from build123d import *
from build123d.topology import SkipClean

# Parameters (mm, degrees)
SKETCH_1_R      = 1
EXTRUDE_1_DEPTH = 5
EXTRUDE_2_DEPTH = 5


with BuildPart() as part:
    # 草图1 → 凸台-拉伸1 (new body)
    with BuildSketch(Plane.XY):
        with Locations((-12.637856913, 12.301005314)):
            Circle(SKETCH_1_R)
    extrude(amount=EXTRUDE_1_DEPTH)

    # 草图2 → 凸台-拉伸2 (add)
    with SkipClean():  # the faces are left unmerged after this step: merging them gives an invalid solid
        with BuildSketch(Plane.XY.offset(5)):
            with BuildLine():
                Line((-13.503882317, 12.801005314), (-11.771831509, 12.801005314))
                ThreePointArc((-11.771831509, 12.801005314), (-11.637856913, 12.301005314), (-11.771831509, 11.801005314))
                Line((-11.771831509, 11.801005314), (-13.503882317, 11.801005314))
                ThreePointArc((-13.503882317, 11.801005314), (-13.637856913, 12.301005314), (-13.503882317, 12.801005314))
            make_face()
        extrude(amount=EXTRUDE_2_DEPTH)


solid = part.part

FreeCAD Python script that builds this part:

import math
import FreeCAD as App
import Part
import Sketcher
from FreeCAD import Vector

doc = App.newDocument("Part")
params = doc.addObject("Spreadsheet::Sheet", "Params")
for row, (alias, value) in enumerate([
    ("sketch1_diameter", "2 mm"),
    ("pad1_length", "5 mm"),
    ("sketch2_radius", "1 mm"),
    ("pad2_length", "5 mm"),
], start=1):
    params.set(f"A{row}", alias)
    params.set(f"B{row}", "=" + value)
    params.setAlias(f"B{row}", alias)

body = doc.addObject("PartDesign::Body", "Body")

# Sketch on XY plane
sketch1 = body.newObject("Sketcher::SketchObject", "Sketch")
sketch1.AttachmentSupport = (doc.getObject("XY_Plane"), [""])
sketch1.MapMode = "FlatFace"
sketch1.addGeometry(Part.Circle(Vector(-12.6, 12.3, 0), Vector(0, 0, 1), 1), False)
sketch1.addConstraint([
    Sketcher.Constraint("Diameter", 0, 2.0),
    Sketcher.Constraint("DistanceX", 0, 3, -1, 1, 12.637857),
    Sketcher.Constraint("DistanceY", -1, 1, 0, 3, 12.301005),
])
sketch1.setExpression("Constraints[0]", "Params.sketch1_diameter")
pad1 = body.newObject("PartDesign::Pad", "Pad")
pad1.Profile = sketch1
pad1.setExpression("Length", "Params.pad1_length")

# Sketch on XY plane
sketch2 = body.newObject("Sketcher::SketchObject", "Sketch001")
sketch2.AttachmentSupport = (doc.getObject("XY_Plane"), [""])
sketch2.MapMode = "FlatFace"
sketch2.AttachmentOffset = App.Placement(Vector(0, 0, 5), App.Rotation())
sketch2.addGeometry([
    Part.LineSegment(Vector(-11.8, 12.8, 0), Vector(-13.5, 12.8, 0)),
    Part.ArcOfCircle(Part.Circle(Vector(-12.6, 12.3, 0), Vector(0, 0, 1), 1), math.radians(150), math.radians(210)),
    Part.LineSegment(Vector(-13.5, 11.8, 0), Vector(-11.8, 11.8, 0)),
    Part.ArcOfCircle(Part.Circle(Vector(-12.6, 12.3, 0), Vector(0, 0, 1), 1), math.radians(-30), math.radians(30)),
], False)
sketch2.addConstraint([
    Sketcher.Constraint("Coincident", 0, 2, 1, 1),
    Sketcher.Constraint("Coincident", 1, 2, 2, 1),
    Sketcher.Constraint("Coincident", 2, 2, 3, 1),
    Sketcher.Constraint("Coincident", 3, 2, 0, 1),
    Sketcher.Constraint("Horizontal", 0),
    Sketcher.Constraint("Horizontal", 2),
    Sketcher.Constraint("Coincident", 3, 3, 1, 3),
    Sketcher.Constraint("Equal", 1, 3),
    Sketcher.Constraint("Vertical", 0, 2, 1, 2),
    Sketcher.Constraint("Radius", 1, 1.0),
    Sketcher.Constraint("DistanceY", 1, 2, 0, 2, 1.0),
    Sketcher.Constraint("DistanceX", 2, 2, -1, 1, 11.771832),
    Sketcher.Constraint("DistanceY", -1, 1, 1, 3, 12.301005),
])
sketch2.setExpression("Constraints[9]", "Params.sketch2_radius")
pad2 = body.newObject("PartDesign::Pad", "Pad001")
pad2.Profile = sketch2
pad2.setExpression("Length", "Params.pad2_length")

doc.recompute()
